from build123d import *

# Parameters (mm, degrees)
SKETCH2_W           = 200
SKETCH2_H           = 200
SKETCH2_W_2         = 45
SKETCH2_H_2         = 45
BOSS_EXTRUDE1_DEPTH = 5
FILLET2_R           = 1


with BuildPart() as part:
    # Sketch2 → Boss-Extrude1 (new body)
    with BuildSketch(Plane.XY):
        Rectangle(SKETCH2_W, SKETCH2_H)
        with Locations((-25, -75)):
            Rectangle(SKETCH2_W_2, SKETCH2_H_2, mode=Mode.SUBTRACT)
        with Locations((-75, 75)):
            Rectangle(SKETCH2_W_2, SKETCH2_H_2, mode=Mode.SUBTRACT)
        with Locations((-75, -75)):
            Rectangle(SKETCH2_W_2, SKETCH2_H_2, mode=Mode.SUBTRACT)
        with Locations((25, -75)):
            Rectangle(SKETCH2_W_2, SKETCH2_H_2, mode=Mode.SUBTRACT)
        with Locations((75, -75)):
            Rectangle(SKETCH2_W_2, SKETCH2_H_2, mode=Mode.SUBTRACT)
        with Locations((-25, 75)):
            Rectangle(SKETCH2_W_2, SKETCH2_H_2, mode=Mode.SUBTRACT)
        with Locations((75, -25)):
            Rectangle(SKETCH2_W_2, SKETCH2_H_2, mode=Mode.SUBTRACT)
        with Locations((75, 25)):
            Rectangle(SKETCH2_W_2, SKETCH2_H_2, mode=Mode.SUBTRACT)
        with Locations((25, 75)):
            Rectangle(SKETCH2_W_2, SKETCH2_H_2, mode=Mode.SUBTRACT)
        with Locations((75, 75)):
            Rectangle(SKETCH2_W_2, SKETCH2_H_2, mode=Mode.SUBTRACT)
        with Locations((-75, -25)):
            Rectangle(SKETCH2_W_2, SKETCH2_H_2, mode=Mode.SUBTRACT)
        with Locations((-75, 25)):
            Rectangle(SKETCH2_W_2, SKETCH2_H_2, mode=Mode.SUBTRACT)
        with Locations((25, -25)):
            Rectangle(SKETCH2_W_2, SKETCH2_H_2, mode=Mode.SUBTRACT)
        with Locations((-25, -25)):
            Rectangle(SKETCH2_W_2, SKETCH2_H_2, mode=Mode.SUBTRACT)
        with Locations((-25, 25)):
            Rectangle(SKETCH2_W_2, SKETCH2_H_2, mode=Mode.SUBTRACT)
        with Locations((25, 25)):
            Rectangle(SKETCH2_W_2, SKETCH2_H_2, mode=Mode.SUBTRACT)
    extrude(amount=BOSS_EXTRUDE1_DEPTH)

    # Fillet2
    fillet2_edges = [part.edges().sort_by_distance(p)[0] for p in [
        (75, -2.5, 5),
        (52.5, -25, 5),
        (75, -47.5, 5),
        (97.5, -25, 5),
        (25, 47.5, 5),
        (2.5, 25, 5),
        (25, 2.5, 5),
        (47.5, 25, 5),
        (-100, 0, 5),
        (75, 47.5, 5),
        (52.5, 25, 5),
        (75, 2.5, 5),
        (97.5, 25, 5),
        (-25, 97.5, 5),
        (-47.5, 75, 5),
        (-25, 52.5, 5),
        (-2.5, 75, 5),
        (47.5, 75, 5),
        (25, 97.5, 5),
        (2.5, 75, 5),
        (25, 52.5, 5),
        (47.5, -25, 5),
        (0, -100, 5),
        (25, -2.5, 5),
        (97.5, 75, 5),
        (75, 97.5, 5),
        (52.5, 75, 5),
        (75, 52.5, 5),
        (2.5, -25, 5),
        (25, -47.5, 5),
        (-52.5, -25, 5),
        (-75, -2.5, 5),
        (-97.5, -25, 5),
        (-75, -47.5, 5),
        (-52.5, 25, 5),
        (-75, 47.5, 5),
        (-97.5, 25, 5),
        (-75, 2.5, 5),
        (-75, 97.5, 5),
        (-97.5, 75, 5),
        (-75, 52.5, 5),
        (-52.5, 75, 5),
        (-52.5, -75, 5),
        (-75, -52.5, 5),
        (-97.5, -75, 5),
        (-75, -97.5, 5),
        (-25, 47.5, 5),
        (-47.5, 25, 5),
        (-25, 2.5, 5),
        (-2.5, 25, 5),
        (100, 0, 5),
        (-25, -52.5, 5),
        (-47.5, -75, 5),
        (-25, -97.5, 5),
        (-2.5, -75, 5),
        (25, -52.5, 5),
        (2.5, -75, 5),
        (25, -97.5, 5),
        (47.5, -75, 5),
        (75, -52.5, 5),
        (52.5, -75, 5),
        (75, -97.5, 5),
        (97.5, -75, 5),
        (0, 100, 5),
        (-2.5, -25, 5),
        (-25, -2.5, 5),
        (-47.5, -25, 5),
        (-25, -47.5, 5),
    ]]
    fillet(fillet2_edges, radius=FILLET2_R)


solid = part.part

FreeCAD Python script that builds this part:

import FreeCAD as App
import Part
import Sketcher

V = App.Vector
Q = App.Units.Quantity


def edges_at(feature, points):
    """Names of the edges that pass closest to the given points."""
    edges = feature.Shape.Edges
    near = lambda p: min(range(len(edges)), key=lambda i: edges[i].distToShape(Part.Vertex(*p))[0])
    return sorted({f"Edge{near(p) + 1}" for p in points})

doc = App.newDocument("Part")
body = doc.addObject("PartDesign::Body", "Body")

# Sketch on XY plane
sketch1 = body.newObject("Sketcher::SketchObject", "Sketch")
sketch1.AttachmentSupport = (doc.getObject("XY_Plane"), [""])
sketch1.MapMode = "FlatFace"
sketch1.addGeometry([
    Part.LineSegment(V(-100, 100, 0), V(-100, -100, 0)),  # 0
    Part.LineSegment(V(-100, -100, 0), V(100, -100, 0)),  # 1
    Part.LineSegment(V(100, -100, 0), V(100, 100, 0)),  # 2
    Part.LineSegment(V(100, 100, 0), V(-100, 100, 0)),  # 3
    Part.LineSegment(V(-52, -98, 0), V(-98, -98, 0)),  # 4
    Part.LineSegment(V(-98, -98, 0), V(-98, -52, 0)),  # 5
    Part.LineSegment(V(-98, -52, 0), V(-52, -52, 0)),  # 6
    Part.LineSegment(V(-52, -52, 0), V(-52, -98, 0)),  # 7
    Part.LineSegment(V(-2, -98, 0), V(-48, -98, 0)),  # 8
    Part.LineSegment(V(-48, -98, 0), V(-48, -52, 0)),  # 9
    Part.LineSegment(V(-48, -52, 0), V(-2, -52, 0)),  # 10
    Part.LineSegment(V(-2, -52, 0), V(-2, -98, 0)),  # 11
    Part.LineSegment(V(-52, -48, 0), V(-98, -48, 0)),  # 12
    Part.LineSegment(V(-98, -48, 0), V(-98, -2, 0)),  # 13
    Part.LineSegment(V(-98, -2, 0), V(-52, -2, 0)),  # 14
    Part.LineSegment(V(-52, -2, 0), V(-52, -48, 0)),  # 15
    Part.LineSegment(V(-2, -48, 0), V(-48, -48, 0)),  # 16
    Part.LineSegment(V(-48, -48, 0), V(-48, -2, 0)),  # 17
    Part.LineSegment(V(-48, -2, 0), V(-2, -2, 0)),  # 18
    Part.LineSegment(V(-2, -2, 0), V(-2, -48, 0)),  # 19
    Part.LineSegment(V(48, -98, 0), V(2, -98, 0)),  # 20
    Part.LineSegment(V(2, -98, 0), V(2, -52, 0)),  # 21
    Part.LineSegment(V(2, -52, 0), V(48, -52, 0)),  # 22
    Part.LineSegment(V(48, -52, 0), V(48, -98, 0)),  # 23
    Part.LineSegment(V(98, -98, 0), V(52, -98, 0)),  # 24
    Part.LineSegment(V(52, -98, 0), V(52, -52, 0)),  # 25
    Part.LineSegment(V(52, -52, 0), V(98, -52, 0)),  # 26
    Part.LineSegment(V(98, -52, 0), V(98, -98, 0)),  # 27
    Part.LineSegment(V(48, -48, 0), V(2, -48, 0)),  # 28
    Part.LineSegment(V(2, -48, 0), V(2, -2, 0)),  # 29
    Part.LineSegment(V(2, -2, 0), V(48, -2, 0)),  # 30
    Part.LineSegment(V(48, -2, 0), V(48, -48, 0)),  # 31
    Part.LineSegment(V(98, -48, 0), V(52, -48, 0)),  # 32
    Part.LineSegment(V(52, -48, 0), V(52, -2, 0)),  # 33
    Part.LineSegment(V(52, -2, 0), V(98, -2, 0)),  # 34
    Part.LineSegment(V(98, -2, 0), V(98, -48, 0)),  # 35
    Part.LineSegment(V(-52, 2, 0), V(-98, 2, 0)),  # 36
    Part.LineSegment(V(-98, 2, 0), V(-98, 48, 0)),  # 37
    Part.LineSegment(V(-98, 48, 0), V(-52, 48, 0)),  # 38
    Part.LineSegment(V(-52, 48, 0), V(-52, 2, 0)),  # 39
    Part.LineSegment(V(-2, 2, 0), V(-48, 2, 0)),  # 40
    Part.LineSegment(V(-48, 2, 0), V(-48, 48, 0)),  # 41
    Part.LineSegment(V(-48, 48, 0), V(-2, 48, 0)),  # 42
    Part.LineSegment(V(-2, 48, 0), V(-2, 2, 0)),  # 43
    Part.LineSegment(V(-52, 52, 0), V(-98, 52, 0)),  # 44
    Part.LineSegment(V(-98, 52, 0), V(-98, 98, 0)),  # 45
    Part.LineSegment(V(-98, 98, 0), V(-52, 98, 0)),  # 46
    Part.LineSegment(V(-52, 98, 0), V(-52, 52, 0)),  # 47
    Part.LineSegment(V(-2, 52, 0), V(-48, 52, 0)),  # 48
    Part.LineSegment(V(-48, 52, 0), V(-48, 98, 0)),  # 49
    Part.LineSegment(V(-48, 98, 0), V(-2, 98, 0)),  # 50
    Part.LineSegment(V(-2, 98, 0), V(-2, 52, 0)),  # 51
    Part.LineSegment(V(48, 2, 0), V(2, 2, 0)),  # 52
    Part.LineSegment(V(2, 2, 0), V(2, 48, 0)),  # 53
    Part.LineSegment(V(2, 48, 0), V(48, 48, 0)),  # 54
    Part.LineSegment(V(48, 48, 0), V(48, 2, 0)),  # 55
    Part.LineSegment(V(98, 2, 0), V(52, 2, 0)),  # 56
    Part.LineSegment(V(52, 2, 0), V(52, 48, 0)),  # 57
    Part.LineSegment(V(52, 48, 0), V(98, 48, 0)),  # 58
    Part.LineSegment(V(98, 48, 0), V(98, 2, 0)),  # 59
    Part.LineSegment(V(48, 52, 0), V(2, 52, 0)),  # 60
    Part.LineSegment(V(2, 52, 0), V(2, 98, 0)),  # 61
    Part.LineSegment(V(2, 98, 0), V(48, 98, 0)),  # 62
    Part.LineSegment(V(48, 98, 0), V(48, 52, 0)),  # 63
    Part.LineSegment(V(98, 52, 0), V(52, 52, 0)),  # 64
    Part.LineSegment(V(52, 52, 0), V(52, 98, 0)),  # 65
    Part.LineSegment(V(52, 98, 0), V(98, 98, 0)),  # 66
    Part.LineSegment(V(98, 98, 0), V(98, 52, 0)),  # 67
], False)
sketch1.addConstraint([
    Sketcher.Constraint("Coincident", 0, 2, 1, 1),
    Sketcher.Constraint("Coincident", 1, 2, 2, 1),
    Sketcher.Constraint("Coincident", 2, 2, 3, 1),
    Sketcher.Constraint("Coincident", 3, 2, 0, 1),
    Sketcher.Constraint("Coincident", 4, 2, 5, 1),
    Sketcher.Constraint("Coincident", 5, 2, 6, 1),
    Sketcher.Constraint("Coincident", 6, 2, 7, 1),
    Sketcher.Constraint("Coincident", 7, 2, 4, 1),
    Sketcher.Constraint("Coincident", 8, 2, 9, 1),
    Sketcher.Constraint("Coincident", 9, 2, 10, 1),
    Sketcher.Constraint("Coincident", 10, 2, 11, 1),
    Sketcher.Constraint("Coincident", 11, 2, 8, 1),
    Sketcher.Constraint("Coincident", 12, 2, 13, 1),
    Sketcher.Constraint("Coincident", 13, 2, 14, 1),
    Sketcher.Constraint("Coincident", 14, 2, 15, 1),
    Sketcher.Constraint("Coincident", 15, 2, 12, 1),
    Sketcher.Constraint("Coincident", 16, 2, 17, 1),
    Sketcher.Constraint("Coincident", 17, 2, 18, 1),
    Sketcher.Constraint("Coincident", 18, 2, 19, 1),
    Sketcher.Constraint("Coincident", 19, 2, 16, 1),
    Sketcher.Constraint("Coincident", 20, 2, 21, 1),
    Sketcher.Constraint("Coincident", 21, 2, 22, 1),
    Sketcher.Constraint("Coincident", 22, 2, 23, 1),
    Sketcher.Constraint("Coincident", 23, 2, 20, 1),
    Sketcher.Constraint("Coincident", 24, 2, 25, 1),
    Sketcher.Constraint("Coincident", 25, 2, 26, 1),
    Sketcher.Constraint("Coincident", 26, 2, 27, 1),
    Sketcher.Constraint("Coincident", 27, 2, 24, 1),
    Sketcher.Constraint("Coincident", 28, 2, 29, 1),
    Sketcher.Constraint("Coincident", 29, 2, 30, 1),
    Sketcher.Constraint("Coincident", 30, 2, 31, 1),
    Sketcher.Constraint("Coincident", 31, 2, 28, 1),
    Sketcher.Constraint("Coincident", 32, 2, 33, 1),
    Sketcher.Constraint("Coincident", 33, 2, 34, 1),
    Sketcher.Constraint("Coincident", 34, 2, 35, 1),
    Sketcher.Constraint("Coincident", 35, 2, 32, 1),
    Sketcher.Constraint("Coincident", 36, 2, 37, 1),
    Sketcher.Constraint("Coincident", 37, 2, 38, 1),
    Sketcher.Constraint("Coincident", 38, 2, 39, 1),
    Sketcher.Constraint("Coincident", 39, 2, 36, 1),
    Sketcher.Constraint("Coincident", 40, 2, 41, 1),
    Sketcher.Constraint("Coincident", 41, 2, 42, 1),
    Sketcher.Constraint("Coincident", 42, 2, 43, 1),
    Sketcher.Constraint("Coincident", 43, 2, 40, 1),
    Sketcher.Constraint("Coincident", 44, 2, 45, 1),
    Sketcher.Constraint("Coincident", 45, 2, 46, 1),
    Sketcher.Constraint("Coincident", 46, 2, 47, 1),
    Sketcher.Constraint("Coincident", 47, 2, 44, 1),
    Sketcher.Constraint("Coincident", 48, 2, 49, 1),
    Sketcher.Constraint("Coincident", 49, 2, 50, 1),
    Sketcher.Constraint("Coincident", 50, 2, 51, 1),
    Sketcher.Constraint("Coincident", 51, 2, 48, 1),
    Sketcher.Constraint("Coincident", 52, 2, 53, 1),
    Sketcher.Constraint("Coincident", 53, 2, 54, 1),
    Sketcher.Constraint("Coincident", 54, 2, 55, 1),
    Sketcher.Constraint("Coincident", 55, 2, 52, 1),
    Sketcher.Constraint("Coincident", 56, 2, 57, 1),
    Sketcher.Constraint("Coincident", 57, 2, 58, 1),
    Sketcher.Constraint("Coincident", 58, 2, 59, 1),
    Sketcher.Constraint("Coincident", 59, 2, 56, 1),
    Sketcher.Constraint("Coincident", 60, 2, 61, 1),
    Sketcher.Constraint("Coincident", 61, 2, 62, 1),
    Sketcher.Constraint("Coincident", 62, 2, 63, 1),
    Sketcher.Constraint("Coincident", 63, 2, 60, 1),
    Sketcher.Constraint("Coincident", 64, 2, 65, 1),
    Sketcher.Constraint("Coincident", 65, 2, 66, 1),
    Sketcher.Constraint("Coincident", 66, 2, 67, 1),
    Sketcher.Constraint("Coincident", 67, 2, 64, 1),
    Sketcher.Constraint("Vertical", 0),
    Sketcher.Constraint("Horizontal", 1),
    Sketcher.Constraint("Vertical", 2),
    Sketcher.Constraint("Horizontal", 3),
    Sketcher.Constraint("Horizontal", 4),
    Sketcher.Constraint("Vertical", 5),
    Sketcher.Constraint("Horizontal", 6),
    Sketcher.Constraint("Vertical", 7),
    Sketcher.Constraint("Horizontal", 8),
    Sketcher.Constraint("Vertical", 9),
    Sketcher.Constraint("Horizontal", 10),
    Sketcher.Constraint("Vertical", 11),
    Sketcher.Constraint("Horizontal", 12),
    Sketcher.Constraint("Vertical", 13),
    Sketcher.Constraint("Horizontal", 14),
    Sketcher.Constraint("Vertical", 15),
    Sketcher.Constraint("Horizontal", 16),
    Sketcher.Constraint("Vertical", 17),
    Sketcher.Constraint("Horizontal", 18),
    Sketcher.Constraint("Vertical", 19),
    Sketcher.Constraint("Horizontal", 20),
    Sketcher.Constraint("Vertical", 21),
    Sketcher.Constraint("Horizontal", 22),
    Sketcher.Constraint("Vertical", 23),
    Sketcher.Constraint("Horizontal", 24),
    Sketcher.Constraint("Vertical", 25),
    Sketcher.Constraint("Horizontal", 26),
    Sketcher.Constraint("Vertical", 27),
    Sketcher.Constraint("Horizontal", 28),
    Sketcher.Constraint("Vertical", 29),
    Sketcher.Constraint("Horizontal", 30),
    Sketcher.Constraint("Vertical", 31),
    Sketcher.Constraint("Horizontal", 32),
    Sketcher.Constraint("Vertical", 33),
    Sketcher.Constraint("Horizontal", 34),
    Sketcher.Constraint("Vertical", 35),
    Sketcher.Constraint("Horizontal", 36),
    Sketcher.Constraint("Vertical", 37),
    Sketcher.Constraint("Horizontal", 38),
    Sketcher.Constraint("Vertical", 39),
    Sketcher.Constraint("Horizontal", 40),
    Sketcher.Constraint("Vertical", 41),
    Sketcher.Constraint("Horizontal", 42),
    Sketcher.Constraint("Vertical", 43),
    Sketcher.Constraint("Horizontal", 44),
    Sketcher.Constraint("Vertical", 45),
    Sketcher.Constraint("Horizontal", 46),
    Sketcher.Constraint("Vertical", 47),
    Sketcher.Constraint("Horizontal", 48),
    Sketcher.Constraint("Vertical", 49),
    Sketcher.Constraint("Horizontal", 50),
    Sketcher.Constraint("Vertical", 51),
    Sketcher.Constraint("Horizontal", 52),
    Sketcher.Constraint("Vertical", 53),
    Sketcher.Constraint("Horizontal", 54),
    Sketcher.Constraint("Vertical", 55),
    Sketcher.Constraint("Horizontal", 56),
    Sketcher.Constraint("Vertical", 57),
    Sketcher.Constraint("Horizontal", 58),
    Sketcher.Constraint("Vertical", 59),
    Sketcher.Constraint("Horizontal", 60),
    Sketcher.Constraint("Vertical", 61),
    Sketcher.Constraint("Horizontal", 62),
    Sketcher.Constraint("Vertical", 63),
    Sketcher.Constraint("Horizontal", 64),
    Sketcher.Constraint("Vertical", 65),
    Sketcher.Constraint("Horizontal", 66),
    Sketcher.Constraint("Vertical", 67),
    Sketcher.Constraint("Symmetric", 0, 2, 2, 2, -1, 1),
    Sketcher.Constraint("Symmetric", 34, 2, 36, 2, -1, 1),
    Sketcher.Constraint("Symmetric", 32, 2, 38, 2, -1, 1),
    Sketcher.Constraint("Symmetric", 30, 2, 40, 2, -1, 1),
    Sketcher.Constraint("Symmetric", 28, 2, 42, 2, -1, 1),
    Sketcher.Constraint("Symmetric", 26, 2, 44, 2, -1, 1),
    Sketcher.Constraint("Symmetric", 24, 2, 46, 2, -1, 1),
    Sketcher.Constraint("Symmetric", 22, 2, 48, 2, -1, 1),
    Sketcher.Constraint("Symmetric", 20, 2, 50, 2, -1, 1),
    Sketcher.Constraint("Symmetric", 18, 2, 52, 2, -1, 1),
    Sketcher.Constraint("Symmetric", 16, 2, 54, 2, -1, 1),
    Sketcher.Constraint("Symmetric", 14, 2, 56, 2, -1, 1),
    Sketcher.Constraint("Symmetric", 12, 2, 58, 2, -1, 1),
    Sketcher.Constraint("Symmetric", 10, 2, 60, 2, -1, 1),
    Sketcher.Constraint("Symmetric", 8, 2, 62, 2, -1, 1),
    Sketcher.Constraint("Symmetric", 6, 2, 64, 2, -1, 1),
    Sketcher.Constraint("Symmetric", 4, 2, 66, 2, -1, 1),
    Sketcher.Constraint("Symmetric", 11, 2, 20, 2, -2),
    Sketcher.Constraint("Symmetric", 9, 2, 22, 2, -2),
    Sketcher.Constraint("Symmetric", 7, 2, 24, 2, -2),
    Sketcher.Constraint("Symmetric", 5, 2, 26, 2, -2),
    Sketcher.Constraint("Symmetric", 19, 2, 28, 2, -2),
    Sketcher.Constraint("Symmetric", 17, 2, 30, 2, -2),
    Sketcher.Constraint("Symmetric", 15, 2, 32, 2, -2),
    Sketcher.Constraint("Symmetric", 13, 2, 34, 2, -2),
    Sketcher.Constraint("Horizontal", 7, 2, 8, 2),
    Sketcher.Constraint("Horizontal", 6, 2, 9, 2),
    Sketcher.Constraint("Horizontal", 15, 2, 16, 2),
    Sketcher.Constraint("Horizontal", 14, 2, 17, 2),
    Sketcher.Constraint("Vertical", 5, 2, 12, 2),
    Sketcher.Constraint("Vertical", 7, 2, 14, 2),
    Sketcher.Constraint("Vertical", 9, 2, 16, 2),
    Sketcher.Constraint("Vertical", 11, 2, 18, 2),
    Sketcher.Constraint("Equal", 6, 8),
    Sketcher.Constraint("Equal", 3, 0),
    Sketcher.Constraint("Equal", 66, 5),
    Sketcher.Constraint("Equal", 11, 13),
    Sketcher.Constraint("DistanceX", 1, 1, 1, 2, Q("200 mm")),
    Sketcher.Constraint("DistanceX", 4, 2, 4, 1, Q("45 mm")),
    Sketcher.Constraint("DistanceX", 4, 2, -1, 1, Q("97.5 mm")),
    Sketcher.Constraint("DistanceY", 4, 2, -1, 1, Q("97.5 mm")),
    Sketcher.Constraint("DistanceX", 8, 2, -1, 1, Q("47.5 mm")),
    Sketcher.Constraint("DistanceY", 12, 2, -1, 1, Q("47.5 mm")),
])
pad1 = body.newObject("PartDesign::Pad", "Pad")
pad1.Profile = sketch1
pad1.Length = 5
doc.recompute()

fillet = body.newObject("PartDesign::Fillet", "Fillet")
fillet.Base = (pad1, edges_at(pad1, [
    (75, -2.5, 5),
    (52.5, -25, 5),
    (75, -47.5, 5),
    (97.5, -25, 5),
    (25, 47.5, 5),
    (2.5, 25, 5),
    (25, 2.5, 5),
    (47.5, 25, 5),
    (-100, 0, 5),
    (75, 47.5, 5),
    (52.5, 25, 5),
    (75, 2.5, 5),
    (97.5, 25, 5),
    (-25, 97.5, 5),
    (-47.5, 75, 5),
    (-25, 52.5, 5),
    (-2.5, 75, 5),
    (47.5, 75, 5),
    (25, 97.5, 5),
    (2.5, 75, 5),
    (25, 52.5, 5),
    (47.5, -25, 5),
    (0, -100, 5),
    (25, -2.5, 5),
    (97.5, 75, 5),
    (75, 97.5, 5),
    (52.5, 75, 5),
    (75, 52.5, 5),
    (2.5, -25, 5),
    (25, -47.5, 5),
    (-52.5, -25, 5),
    (-75, -2.5, 5),
    (-97.5, -25, 5),
    (-75, -47.5, 5),
    (-52.5, 25, 5),
    (-75, 47.5, 5),
    (-97.5, 25, 5),
    (-75, 2.5, 5),
    (-75, 97.5, 5),
    (-97.5, 75, 5),
    (-75, 52.5, 5),
    (-52.5, 75, 5),
    (-52.5, -75, 5),
    (-75, -52.5, 5),
    (-97.5, -75, 5),
    (-75, -97.5, 5),
    (-25, 47.5, 5),
    (-47.5, 25, 5),
    (-25, 2.5, 5),
    (-2.5, 25, 5),
    (100, 0, 5),
    (-25, -52.5, 5),
    (-47.5, -75, 5),
    (-25, -97.5, 5),
    (-2.5, -75, 5),
    (25, -52.5, 5),
    (2.5, -75, 5),
    (25, -97.5, 5),
    (47.5, -75, 5),
    (75, -52.5, 5),
    (52.5, -75, 5),
    (75, -97.5, 5),
    (97.5, -75, 5),
    (0, 100, 5),
    (-2.5, -25, 5),
    (-25, -2.5, 5),
    (-47.5, -25, 5),
    (-25, -47.5, 5),
]))
fillet.Radius = 1

doc.recompute()
